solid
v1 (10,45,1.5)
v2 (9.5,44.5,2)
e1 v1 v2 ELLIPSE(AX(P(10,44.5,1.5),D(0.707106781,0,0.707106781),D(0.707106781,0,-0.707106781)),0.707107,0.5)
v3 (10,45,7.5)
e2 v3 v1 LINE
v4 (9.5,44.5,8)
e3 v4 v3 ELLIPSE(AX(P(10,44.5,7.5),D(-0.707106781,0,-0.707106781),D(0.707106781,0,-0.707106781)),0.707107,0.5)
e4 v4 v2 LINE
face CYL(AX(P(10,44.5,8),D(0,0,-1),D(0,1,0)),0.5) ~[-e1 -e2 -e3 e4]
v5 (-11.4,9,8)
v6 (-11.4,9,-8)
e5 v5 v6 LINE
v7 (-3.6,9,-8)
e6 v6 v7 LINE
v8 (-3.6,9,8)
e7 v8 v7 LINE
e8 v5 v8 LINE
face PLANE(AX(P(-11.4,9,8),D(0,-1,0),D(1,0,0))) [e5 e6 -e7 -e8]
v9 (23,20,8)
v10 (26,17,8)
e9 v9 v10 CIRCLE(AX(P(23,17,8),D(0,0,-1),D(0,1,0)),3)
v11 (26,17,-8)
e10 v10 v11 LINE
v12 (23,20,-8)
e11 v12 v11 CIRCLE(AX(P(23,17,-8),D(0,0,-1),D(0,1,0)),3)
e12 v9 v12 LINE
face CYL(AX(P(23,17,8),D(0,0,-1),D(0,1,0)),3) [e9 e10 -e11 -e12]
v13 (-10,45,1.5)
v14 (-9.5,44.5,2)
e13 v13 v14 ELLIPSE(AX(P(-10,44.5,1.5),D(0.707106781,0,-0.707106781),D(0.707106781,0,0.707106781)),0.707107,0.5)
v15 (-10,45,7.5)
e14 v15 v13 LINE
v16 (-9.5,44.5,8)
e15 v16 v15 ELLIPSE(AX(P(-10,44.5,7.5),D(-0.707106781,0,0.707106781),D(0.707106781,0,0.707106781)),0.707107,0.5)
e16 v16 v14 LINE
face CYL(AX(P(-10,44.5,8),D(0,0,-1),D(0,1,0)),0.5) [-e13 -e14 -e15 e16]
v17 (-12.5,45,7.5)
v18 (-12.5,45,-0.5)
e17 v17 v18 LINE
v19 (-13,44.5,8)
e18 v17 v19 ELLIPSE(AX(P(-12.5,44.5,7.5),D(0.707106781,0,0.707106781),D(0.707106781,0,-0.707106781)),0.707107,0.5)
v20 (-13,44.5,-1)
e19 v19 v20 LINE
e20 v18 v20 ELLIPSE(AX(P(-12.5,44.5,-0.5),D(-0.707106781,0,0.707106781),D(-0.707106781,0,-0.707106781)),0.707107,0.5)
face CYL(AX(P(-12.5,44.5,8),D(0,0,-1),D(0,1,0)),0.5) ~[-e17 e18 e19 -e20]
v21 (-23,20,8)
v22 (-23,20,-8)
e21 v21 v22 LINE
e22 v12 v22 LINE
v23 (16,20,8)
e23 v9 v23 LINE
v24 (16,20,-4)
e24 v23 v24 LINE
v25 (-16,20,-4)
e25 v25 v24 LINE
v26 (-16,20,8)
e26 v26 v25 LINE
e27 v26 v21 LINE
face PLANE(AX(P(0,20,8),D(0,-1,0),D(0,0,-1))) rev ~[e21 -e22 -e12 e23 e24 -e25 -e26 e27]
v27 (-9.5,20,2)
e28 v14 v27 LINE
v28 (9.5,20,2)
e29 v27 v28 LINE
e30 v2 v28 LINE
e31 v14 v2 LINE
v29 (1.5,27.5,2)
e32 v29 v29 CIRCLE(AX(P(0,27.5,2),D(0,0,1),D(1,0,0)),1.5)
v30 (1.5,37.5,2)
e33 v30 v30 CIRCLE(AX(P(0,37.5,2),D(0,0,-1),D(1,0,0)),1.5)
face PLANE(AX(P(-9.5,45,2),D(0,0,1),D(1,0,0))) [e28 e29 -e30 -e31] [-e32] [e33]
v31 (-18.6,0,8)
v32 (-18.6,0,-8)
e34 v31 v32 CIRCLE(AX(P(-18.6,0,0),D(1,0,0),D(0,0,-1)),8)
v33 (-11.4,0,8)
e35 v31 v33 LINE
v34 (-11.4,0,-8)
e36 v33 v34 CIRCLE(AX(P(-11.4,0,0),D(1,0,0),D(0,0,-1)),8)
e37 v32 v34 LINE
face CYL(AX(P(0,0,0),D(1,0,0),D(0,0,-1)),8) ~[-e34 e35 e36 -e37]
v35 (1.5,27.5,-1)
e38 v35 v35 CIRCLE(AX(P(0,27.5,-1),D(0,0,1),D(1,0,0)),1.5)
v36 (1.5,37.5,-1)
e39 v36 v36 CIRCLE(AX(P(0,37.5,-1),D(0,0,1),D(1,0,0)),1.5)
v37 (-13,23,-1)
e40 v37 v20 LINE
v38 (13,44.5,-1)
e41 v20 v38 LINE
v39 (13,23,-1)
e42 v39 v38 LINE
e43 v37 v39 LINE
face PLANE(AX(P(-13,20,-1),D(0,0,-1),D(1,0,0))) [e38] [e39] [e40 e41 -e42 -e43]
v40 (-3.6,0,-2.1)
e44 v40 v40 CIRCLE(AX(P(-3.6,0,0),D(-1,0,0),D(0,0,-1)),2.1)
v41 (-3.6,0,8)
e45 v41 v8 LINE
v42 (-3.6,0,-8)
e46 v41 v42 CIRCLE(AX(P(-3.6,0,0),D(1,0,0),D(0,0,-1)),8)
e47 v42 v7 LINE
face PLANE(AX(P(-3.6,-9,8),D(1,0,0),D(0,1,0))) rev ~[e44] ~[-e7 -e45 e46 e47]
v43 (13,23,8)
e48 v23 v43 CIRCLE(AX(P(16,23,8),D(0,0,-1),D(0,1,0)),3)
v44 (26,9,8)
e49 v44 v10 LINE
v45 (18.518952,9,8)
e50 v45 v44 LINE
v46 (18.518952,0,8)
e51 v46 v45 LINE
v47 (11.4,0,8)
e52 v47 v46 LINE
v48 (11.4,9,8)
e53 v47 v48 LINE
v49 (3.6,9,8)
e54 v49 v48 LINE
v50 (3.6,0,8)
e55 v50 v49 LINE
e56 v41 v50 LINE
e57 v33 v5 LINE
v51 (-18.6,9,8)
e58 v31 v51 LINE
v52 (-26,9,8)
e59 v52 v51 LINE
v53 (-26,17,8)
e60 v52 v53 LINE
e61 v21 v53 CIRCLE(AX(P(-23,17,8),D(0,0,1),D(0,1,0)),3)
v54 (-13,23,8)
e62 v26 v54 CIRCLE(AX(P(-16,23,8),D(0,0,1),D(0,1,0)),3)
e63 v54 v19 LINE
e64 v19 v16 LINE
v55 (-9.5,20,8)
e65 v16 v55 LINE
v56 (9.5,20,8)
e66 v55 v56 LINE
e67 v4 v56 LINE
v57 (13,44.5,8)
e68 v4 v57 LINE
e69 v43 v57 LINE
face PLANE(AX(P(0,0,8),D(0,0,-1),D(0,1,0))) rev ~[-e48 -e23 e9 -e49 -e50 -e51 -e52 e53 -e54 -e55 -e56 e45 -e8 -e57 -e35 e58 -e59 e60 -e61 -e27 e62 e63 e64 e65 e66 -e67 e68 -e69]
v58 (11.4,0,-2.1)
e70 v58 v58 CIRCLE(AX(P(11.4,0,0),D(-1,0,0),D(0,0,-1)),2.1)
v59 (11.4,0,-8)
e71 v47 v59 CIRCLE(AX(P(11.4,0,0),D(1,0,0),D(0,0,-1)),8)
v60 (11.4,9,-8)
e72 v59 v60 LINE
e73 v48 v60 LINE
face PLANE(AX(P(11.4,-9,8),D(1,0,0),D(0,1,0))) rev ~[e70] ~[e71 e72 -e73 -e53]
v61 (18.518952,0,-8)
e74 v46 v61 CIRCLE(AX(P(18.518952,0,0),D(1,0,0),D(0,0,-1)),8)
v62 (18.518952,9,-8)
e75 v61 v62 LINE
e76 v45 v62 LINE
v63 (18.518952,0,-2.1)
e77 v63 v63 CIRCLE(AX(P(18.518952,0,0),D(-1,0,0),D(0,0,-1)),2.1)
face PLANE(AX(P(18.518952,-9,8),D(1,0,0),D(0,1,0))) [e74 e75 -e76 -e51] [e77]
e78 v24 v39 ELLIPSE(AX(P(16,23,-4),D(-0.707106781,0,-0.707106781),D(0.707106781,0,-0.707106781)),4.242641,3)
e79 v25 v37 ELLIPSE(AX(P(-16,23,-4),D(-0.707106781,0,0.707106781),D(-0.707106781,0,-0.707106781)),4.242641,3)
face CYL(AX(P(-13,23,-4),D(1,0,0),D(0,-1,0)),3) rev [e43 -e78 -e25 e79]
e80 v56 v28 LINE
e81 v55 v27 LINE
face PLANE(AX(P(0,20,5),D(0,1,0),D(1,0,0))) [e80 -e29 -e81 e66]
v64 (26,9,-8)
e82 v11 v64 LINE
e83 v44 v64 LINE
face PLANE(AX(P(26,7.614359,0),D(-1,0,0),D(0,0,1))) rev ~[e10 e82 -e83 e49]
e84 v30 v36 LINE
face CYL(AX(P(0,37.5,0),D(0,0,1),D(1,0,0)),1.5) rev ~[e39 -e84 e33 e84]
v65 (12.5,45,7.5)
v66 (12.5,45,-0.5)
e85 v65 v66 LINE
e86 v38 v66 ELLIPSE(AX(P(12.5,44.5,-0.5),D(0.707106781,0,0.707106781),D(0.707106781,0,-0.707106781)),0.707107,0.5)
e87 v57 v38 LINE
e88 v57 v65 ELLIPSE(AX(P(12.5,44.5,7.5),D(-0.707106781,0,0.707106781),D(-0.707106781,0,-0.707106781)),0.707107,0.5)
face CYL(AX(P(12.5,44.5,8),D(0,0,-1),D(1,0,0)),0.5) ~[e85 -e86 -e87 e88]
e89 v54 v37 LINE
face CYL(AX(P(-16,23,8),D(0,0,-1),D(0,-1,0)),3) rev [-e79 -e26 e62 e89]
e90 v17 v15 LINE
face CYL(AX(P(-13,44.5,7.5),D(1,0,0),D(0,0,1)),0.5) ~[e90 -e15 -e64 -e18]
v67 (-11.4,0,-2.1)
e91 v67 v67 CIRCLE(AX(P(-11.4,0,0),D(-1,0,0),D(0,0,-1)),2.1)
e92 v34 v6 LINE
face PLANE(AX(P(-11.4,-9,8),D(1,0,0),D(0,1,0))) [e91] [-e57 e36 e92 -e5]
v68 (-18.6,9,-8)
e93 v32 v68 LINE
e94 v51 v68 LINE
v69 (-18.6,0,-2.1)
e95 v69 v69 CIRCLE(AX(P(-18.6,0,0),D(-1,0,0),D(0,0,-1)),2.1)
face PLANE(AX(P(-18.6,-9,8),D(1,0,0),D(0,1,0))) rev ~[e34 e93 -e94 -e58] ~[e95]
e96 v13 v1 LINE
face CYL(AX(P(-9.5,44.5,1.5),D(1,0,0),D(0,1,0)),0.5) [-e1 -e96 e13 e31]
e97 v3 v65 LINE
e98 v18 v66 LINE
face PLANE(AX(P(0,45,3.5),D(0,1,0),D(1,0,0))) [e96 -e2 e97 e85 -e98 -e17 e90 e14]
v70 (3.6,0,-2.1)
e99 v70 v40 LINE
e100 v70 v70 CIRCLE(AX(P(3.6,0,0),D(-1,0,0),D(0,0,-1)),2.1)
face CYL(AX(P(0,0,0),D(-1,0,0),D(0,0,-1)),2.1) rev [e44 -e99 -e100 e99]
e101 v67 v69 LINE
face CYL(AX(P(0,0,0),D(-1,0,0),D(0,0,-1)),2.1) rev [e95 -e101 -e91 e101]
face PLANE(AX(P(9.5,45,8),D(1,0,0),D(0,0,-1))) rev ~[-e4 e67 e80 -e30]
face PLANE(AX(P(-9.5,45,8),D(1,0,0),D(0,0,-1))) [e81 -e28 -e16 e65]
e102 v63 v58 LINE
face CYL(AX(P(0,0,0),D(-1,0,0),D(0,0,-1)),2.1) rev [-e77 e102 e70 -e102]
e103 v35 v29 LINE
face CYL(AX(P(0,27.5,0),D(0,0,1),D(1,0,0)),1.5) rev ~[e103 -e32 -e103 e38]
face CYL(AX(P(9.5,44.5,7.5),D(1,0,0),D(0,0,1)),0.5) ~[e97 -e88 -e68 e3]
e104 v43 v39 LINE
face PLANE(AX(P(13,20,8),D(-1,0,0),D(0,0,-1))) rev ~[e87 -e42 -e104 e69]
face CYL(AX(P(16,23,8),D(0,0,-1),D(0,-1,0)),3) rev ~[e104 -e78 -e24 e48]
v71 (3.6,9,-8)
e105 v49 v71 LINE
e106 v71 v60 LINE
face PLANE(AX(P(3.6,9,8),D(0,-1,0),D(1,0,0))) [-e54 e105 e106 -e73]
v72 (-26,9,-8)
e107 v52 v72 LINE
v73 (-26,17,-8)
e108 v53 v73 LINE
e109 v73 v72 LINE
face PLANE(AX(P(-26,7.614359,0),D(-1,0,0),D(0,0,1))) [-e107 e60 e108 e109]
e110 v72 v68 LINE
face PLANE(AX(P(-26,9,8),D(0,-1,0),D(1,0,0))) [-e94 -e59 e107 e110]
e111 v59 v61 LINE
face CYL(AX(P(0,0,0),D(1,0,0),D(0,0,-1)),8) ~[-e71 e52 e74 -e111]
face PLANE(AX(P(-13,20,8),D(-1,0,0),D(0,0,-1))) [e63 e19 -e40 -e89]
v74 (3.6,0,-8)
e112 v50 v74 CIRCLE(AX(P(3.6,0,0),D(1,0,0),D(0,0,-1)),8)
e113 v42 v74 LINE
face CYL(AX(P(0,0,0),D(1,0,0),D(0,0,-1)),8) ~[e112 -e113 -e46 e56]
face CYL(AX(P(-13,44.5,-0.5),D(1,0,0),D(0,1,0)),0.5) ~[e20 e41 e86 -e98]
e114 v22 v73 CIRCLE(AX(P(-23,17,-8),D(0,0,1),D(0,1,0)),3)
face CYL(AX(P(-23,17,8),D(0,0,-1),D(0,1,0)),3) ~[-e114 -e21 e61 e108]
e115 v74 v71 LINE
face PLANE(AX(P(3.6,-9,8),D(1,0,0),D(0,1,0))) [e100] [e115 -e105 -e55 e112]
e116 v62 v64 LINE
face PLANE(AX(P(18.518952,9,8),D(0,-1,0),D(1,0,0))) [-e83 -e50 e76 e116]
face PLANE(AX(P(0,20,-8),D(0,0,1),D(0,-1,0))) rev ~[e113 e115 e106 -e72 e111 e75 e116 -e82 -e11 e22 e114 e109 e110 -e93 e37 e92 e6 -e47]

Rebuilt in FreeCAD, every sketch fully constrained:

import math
import FreeCAD as App
import Part
import Sketcher

V = App.Vector


def edges_at(feature, points):
    """Names of the edges that pass closest to the given points."""
    edges = feature.Shape.Edges
    near = lambda p: min(range(len(edges)), key=lambda i: edges[i].distToShape(Part.Vertex(*p))[0])
    return sorted({f"Edge{near(p) + 1}" for p in points})


def add_polygon(sketch, points):
    """Adds a closed chain of lines whose ends are joined by coincident constraints."""
    first, n = sketch.GeometryCount, len(points)
    for a, b in zip(points, points[1:] + points[:1]):
        sketch.addGeometry(Part.LineSegment(App.Vector(*a, 0), App.Vector(*b, 0)), False)
    for i in range(n):
        sketch.addConstraint(Sketcher.Constraint("Coincident", first + i, 2, first + (i + 1) % n, 1))

doc = App.newDocument("Part")
body = doc.addObject("PartDesign::Body", "Body")

# Sketch on YZ plane
sketch1 = doc.addObject("Sketcher::SketchObject", "Sketch")
body.addObject(sketch1)
sketch1.AttachmentSupport = (doc.YZ_Plane, [""])
sketch1.MapMode = "FlatFace"
sketch1.addGeometry([
    Part.LineSegment(V(20, 8, 0), V(0, 8, 0)),  # 0
    Part.ArcOfCircle(Part.Circle(V(0, 0, 0), V(0, 0, 1), 8), math.radians(90), math.radians(270)),  # 1
    Part.LineSegment(V(0, -8, 0), V(20, -8, 0)),  # 2
    Part.LineSegment(V(20, -8, 0), V(20, 8, 0)),  # 3
    Part.Circle(V(0, 0, 0), V(0, 0, 1), 2.1),  # 4
], False)
sketch1.addConstraint([
    Sketcher.Constraint("Tangent", 0, 2, 1, 1),
    Sketcher.Constraint("Tangent", 1, 2, 2, 1),
    Sketcher.Constraint("Coincident", 2, 2, 3, 1),
    Sketcher.Constraint("Coincident", 3, 2, 0, 1),
    Sketcher.Constraint("Horizontal", 0),
    Sketcher.Constraint("Horizontal", 2),
    Sketcher.Constraint("Vertical", 3),
    Sketcher.Constraint("Coincident", 1, 3, -1, 1),
    Sketcher.Constraint("Coincident", 4, 3, -1, 1),
    Sketcher.Constraint("Radius", 1, 8.0),
    Sketcher.Constraint("Diameter", 4, 4.2),
    Sketcher.Constraint("DistanceX", 0, 2, 0, 1, 20.0),
])
pad1 = doc.addObject("PartDesign::Pad", "Pad")
body.addObject(pad1)
pad1.Profile = sketch1
pad1.Length = 52
pad1.Midplane = True

# Sketch on XY plane
sketch2 = doc.addObject("Sketcher::SketchObject", "Sketch001")
body.addObject(sketch2)
sketch2.AttachmentSupport = (doc.XY_Plane, [""])
sketch2.MapMode = "FlatFace"
sketch2.AttachmentOffset = App.Placement(V(0, 0, 8), App.Rotation())
add_polygon(sketch2, [(-26, 9), (-26, -9), (-18.6, -9), (-18.6, 9)])  # lines 0-3
add_polygon(sketch2, [(-11.4, 9), (-11.4, -9), (-3.6, -9), (-3.6, 9)])  # lines 4-7
add_polygon(sketch2, [(3.6, 9), (3.6, -9), (11.4, -9), (11.4, 9)])  # lines 8-11
add_polygon(sketch2, [(18.518952, 9), (18.518952, -9), (26, -9), (26, 9)])  # lines 12-15
sketch2.addConstraint([
    Sketcher.Constraint("Vertical", 0),
    Sketcher.Constraint("Horizontal", 1),
    Sketcher.Constraint("Vertical", 2),
    Sketcher.Constraint("Horizontal", 3),
    Sketcher.Constraint("Vertical", 4),
    Sketcher.Constraint("Horizontal", 5),
    Sketcher.Constraint("Vertical", 6),
    Sketcher.Constraint("Horizontal", 7),
    Sketcher.Constraint("Vertical", 8),
    Sketcher.Constraint("Horizontal", 9),
    Sketcher.Constraint("Vertical", 10),
    Sketcher.Constraint("Horizontal", 11),
    Sketcher.Constraint("Vertical", 12),
    Sketcher.Constraint("Horizontal", 13),
    Sketcher.Constraint("Vertical", 14),
    Sketcher.Constraint("Horizontal", 15),
    Sketcher.Constraint("Symmetric", 6, 2, 8, 2, -1, 1),
    Sketcher.Constraint("Symmetric", 4, 2, 10, 2, -1, 1),
    Sketcher.Constraint("Symmetric", 3, 2, 13, 2, -1, 1),
    Sketcher.Constraint("Horizontal", 1, 2, 4, 2),
    Sketcher.Constraint("Horizontal", 3, 2, 6, 2),
    Sketcher.Constraint("Horizontal", 5, 2, 8, 2),
    Sketcher.Constraint("Horizontal", 11, 2, 14, 2),
    Sketcher.Constraint("DistanceY", 0, 2, 0, 1, 18.0),
    Sketcher.Constraint("DistanceX", 1, 1, 1, 2, 7.4),
    Sketcher.Constraint("DistanceX", 5, 1, 5, 2, 7.8),
    Sketcher.Constraint("DistanceX", 0, 2, -1, 1, 26.0),
    Sketcher.Constraint("DistanceX", 1, 2, 5, 2, 15.0),
    Sketcher.Constraint("DistanceX", 13, 1, 13, 2, 7.481048),
])
pocket1 = doc.addObject("PartDesign::Pocket", "Pocket")
body.addObject(pocket1)
pocket1.Profile = sketch2
pocket1.Type = "ThroughAll"

# Sketch on XZ plane
sketch3 = doc.addObject("Sketcher::SketchObject", "Sketch002")
body.addObject(sketch3)
sketch3.AttachmentSupport = (doc.XZ_Plane, [""])
sketch3.MapMode = "FlatFace"
sketch3.AttachmentOffset = App.Placement(V(0, 0, -20), App.Rotation())
add_polygon(sketch3, [(-13, -1), (-13, 8), (13, 8), (13, -1)])  # lines 0-3
sketch3.addConstraint([
    Sketcher.Constraint("Vertical", 0),
    Sketcher.Constraint("Horizontal", 1),
    Sketcher.Constraint("Vertical", 2),
    Sketcher.Constraint("Horizontal", 3),
    Sketcher.Constraint("DistanceX", 1, 1, 1, 2, 26.0),
    Sketcher.Constraint("DistanceY", 0, 1, 0, 2, 9.0),
    Sketcher.Constraint("DistanceX", 0, 2, -1, 1, 13.0),
    Sketcher.Constraint("DistanceY", -1, 1, 0, 2, 8.0),
])
pad2 = doc.addObject("PartDesign::Pad", "Pad001")
body.addObject(pad2)
pad2.Profile = sketch3
pad2.Length = 25
pad2.Reversed = True

# Sketch on XZ plane
sketch4 = doc.addObject("Sketcher::SketchObject", "Sketch003")
body.addObject(sketch4)
sketch4.AttachmentSupport = (doc.XZ_Plane, [""])
sketch4.MapMode = "FlatFace"
sketch4.AttachmentOffset = App.Placement(V(0, 0, -45), App.Rotation())
add_polygon(sketch4, [(-9.5, 2), (-9.5, 8), (9.5, 8), (9.5, 2)])  # lines 0-3
sketch4.addConstraint([
    Sketcher.Constraint("Vertical", 0),
    Sketcher.Constraint("Horizontal", 1),
    Sketcher.Constraint("Vertical", 2),
    Sketcher.Constraint("Horizontal", 3),
    Sketcher.Constraint("DistanceX", 1, 1, 1, 2, 19.0),
    Sketcher.Constraint("DistanceY", 0, 1, 0, 2, 6.0),
    Sketcher.Constraint("DistanceY", -1, 1, 0, 2, 8.0),
    Sketcher.Constraint("DistanceX", 0, 2, -1, 1, 9.5),
])
pocket2 = doc.addObject("PartDesign::Pocket", "Pocket001")
body.addObject(pocket2)
pocket2.Profile = sketch4
pocket2.Length = 25
pocket2.Reversed = True
doc.recompute()

fillet = doc.addObject("PartDesign::Fillet", "Fillet")
body.addObject(fillet)
fillet.Base = (pocket2, edges_at(pocket2, [(-13, 20, 3.5), (13, 20, 3.5), (0, 20, -1)]))
fillet.Radius = 3
doc.recompute()

fillet2 = doc.addObject("PartDesign::Fillet", "Fillet001")
body.addObject(fillet2)
fillet2.Base = (fillet, edges_at(fillet, [(26, 20, 0), (-26, 20, 0)]))
fillet2.Radius = 3
doc.recompute()

fillet3 = doc.addObject("PartDesign::Fillet", "Fillet002")
body.addObject(fillet3)
fillet3.Base = (fillet2, edges_at(fillet2, [
    (-13, 45, 3.5),
    (-11.25, 45, 8),
    (13, 45, 3.5),
    (0, 45, -1),
    (11.25, 45, 8),
    (9.5, 45, 5),
    (0, 45, 2),
    (-9.5, 45, 5),
]))
fillet3.Radius = 0.5

# Sketch on XY plane
sketch5 = doc.addObject("Sketcher::SketchObject", "Sketch004")
body.addObject(sketch5)
sketch5.AttachmentSupport = (doc.XY_Plane, [""])
sketch5.MapMode = "FlatFace"
sketch5.addGeometry([
    Part.Circle(V(0, 37.5, 0), V(0, 0, 1), 1.5),
    Part.Circle(V(0, 27.5, 0), V(0, 0, 1), 1.5),
], False)
sketch5.addConstraint([
    Sketcher.Constraint("Equal", 0, 1),
    Sketcher.Constraint("PointOnObject", 0, 3, -2),
    Sketcher.Constraint("PointOnObject", 1, 3, -2),
    Sketcher.Constraint("Diameter", 0, 3.0),
    Sketcher.Constraint("DistanceY", 1, 3, 0, 3, 10.0),
    Sketcher.Constraint("DistanceY", -1, 1, 0, 3, 37.5),
])
pocket3 = doc.addObject("PartDesign::Pocket", "Pocket002")
body.addObject(pocket3)
pocket3.Profile = sketch5
pocket3.Length = 25
pocket3.Midplane = True

doc.recompute()
